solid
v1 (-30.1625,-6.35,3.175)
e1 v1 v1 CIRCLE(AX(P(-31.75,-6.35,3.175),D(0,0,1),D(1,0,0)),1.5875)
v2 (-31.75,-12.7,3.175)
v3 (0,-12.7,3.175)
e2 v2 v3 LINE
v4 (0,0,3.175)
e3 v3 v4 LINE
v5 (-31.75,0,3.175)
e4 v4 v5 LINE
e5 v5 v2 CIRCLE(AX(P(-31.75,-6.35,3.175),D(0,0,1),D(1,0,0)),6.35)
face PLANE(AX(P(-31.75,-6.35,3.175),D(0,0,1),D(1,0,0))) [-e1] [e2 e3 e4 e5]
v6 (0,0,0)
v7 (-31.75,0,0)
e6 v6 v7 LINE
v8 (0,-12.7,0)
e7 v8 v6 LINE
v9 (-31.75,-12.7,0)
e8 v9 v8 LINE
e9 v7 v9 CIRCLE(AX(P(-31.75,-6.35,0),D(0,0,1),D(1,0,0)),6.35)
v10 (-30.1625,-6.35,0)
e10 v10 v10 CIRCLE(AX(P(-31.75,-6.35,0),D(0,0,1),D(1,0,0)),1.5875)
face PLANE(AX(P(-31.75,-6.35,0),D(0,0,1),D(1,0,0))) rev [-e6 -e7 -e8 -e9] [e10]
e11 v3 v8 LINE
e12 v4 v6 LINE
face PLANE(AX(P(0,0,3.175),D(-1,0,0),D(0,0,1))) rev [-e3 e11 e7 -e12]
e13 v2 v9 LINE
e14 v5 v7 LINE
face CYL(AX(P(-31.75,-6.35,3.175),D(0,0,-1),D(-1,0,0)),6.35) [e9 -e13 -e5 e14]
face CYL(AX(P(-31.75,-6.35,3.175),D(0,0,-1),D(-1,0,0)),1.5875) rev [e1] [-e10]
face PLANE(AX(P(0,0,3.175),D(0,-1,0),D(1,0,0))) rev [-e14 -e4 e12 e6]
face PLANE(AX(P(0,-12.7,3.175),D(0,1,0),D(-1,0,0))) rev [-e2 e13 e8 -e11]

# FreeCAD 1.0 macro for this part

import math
import FreeCAD as App
import Part
import Sketcher

V = App.Vector
Q = App.Units.Quantity

doc = App.newDocument("Part")
params = doc.addObject("Spreadsheet::Sheet", "Params")
for row, (alias, value) in enumerate([
    ("sketch1_radius", "0.25 in"),
    ("sketch1_diameter", "0.125 in"),
    ("sketch1_width", "1.25 in"),
    ("pad1_length", "0.125 in"),
], start=1):
    params.set(f"A{row}", alias)
    params.set(f"B{row}", "=" + value)
    params.setAlias(f"B{row}", alias)

body = doc.addObject("PartDesign::Body", "Body")

sketch1 = doc.addObject("Sketcher::SketchObject", "Sketch")
body.addObject(sketch1)
sketch1.AttachmentSupport = (doc.XY_Plane, [""])
sketch1.MapMode = "FlatFace"
sketch1.addGeometry([
    Part.LineSegment(V(0, 0, 0), V(-31.75, 0, 0)),
    Part.ArcOfCircle(Part.Circle(V(-31.75, -6.35, 0), V(0, 0, 1), 6.35), math.radians(90), math.radians(270)),
    Part.LineSegment(V(-31.75, -12.7, 0), V(0, -12.7, 0)),
    Part.LineSegment(V(0, -12.7, 0), V(0, 0, 0)),
    Part.Circle(V(-31.75, -6.35, 0), V(0, 0, 1), 1.5875),
], False)
sketch1.addConstraint([
    Sketcher.Constraint("Tangent", 0, 2, 1, 1),
    Sketcher.Constraint("Tangent", 1, 2, 2, 1),
    Sketcher.Constraint("Coincident", 2, 2, 3, 1),
    Sketcher.Constraint("Coincident", 3, 2, 0, 1),
    Sketcher.Constraint("Horizontal", 0),
    Sketcher.Constraint("Horizontal", 2),
    Sketcher.Constraint("Vertical", 3),
    Sketcher.Constraint("Coincident", 3, 2, -1, 1),
    Sketcher.Constraint("Coincident", 4, 3, 1, 3),
    Sketcher.Constraint("Radius", 1, Q("0.25 in")),
    Sketcher.Constraint("Diameter", 4, Q("0.125 in")),
    Sketcher.Constraint("DistanceX", 0, 2, 0, 1, Q("1.25 in")),
])
sketch1.setExpression("Constraints[9]", "Params.sketch1_radius")
sketch1.setExpression("Constraints[10]", "Params.sketch1_diameter")
sketch1.setExpression("Constraints[11]", "Params.sketch1_width")
pad1 = doc.addObject("PartDesign::Pad", "Pad")
body.addObject(pad1)
pad1.Profile = sketch1
pad1.setExpression("Length", "Params.pad1_length")

doc.recompute()
